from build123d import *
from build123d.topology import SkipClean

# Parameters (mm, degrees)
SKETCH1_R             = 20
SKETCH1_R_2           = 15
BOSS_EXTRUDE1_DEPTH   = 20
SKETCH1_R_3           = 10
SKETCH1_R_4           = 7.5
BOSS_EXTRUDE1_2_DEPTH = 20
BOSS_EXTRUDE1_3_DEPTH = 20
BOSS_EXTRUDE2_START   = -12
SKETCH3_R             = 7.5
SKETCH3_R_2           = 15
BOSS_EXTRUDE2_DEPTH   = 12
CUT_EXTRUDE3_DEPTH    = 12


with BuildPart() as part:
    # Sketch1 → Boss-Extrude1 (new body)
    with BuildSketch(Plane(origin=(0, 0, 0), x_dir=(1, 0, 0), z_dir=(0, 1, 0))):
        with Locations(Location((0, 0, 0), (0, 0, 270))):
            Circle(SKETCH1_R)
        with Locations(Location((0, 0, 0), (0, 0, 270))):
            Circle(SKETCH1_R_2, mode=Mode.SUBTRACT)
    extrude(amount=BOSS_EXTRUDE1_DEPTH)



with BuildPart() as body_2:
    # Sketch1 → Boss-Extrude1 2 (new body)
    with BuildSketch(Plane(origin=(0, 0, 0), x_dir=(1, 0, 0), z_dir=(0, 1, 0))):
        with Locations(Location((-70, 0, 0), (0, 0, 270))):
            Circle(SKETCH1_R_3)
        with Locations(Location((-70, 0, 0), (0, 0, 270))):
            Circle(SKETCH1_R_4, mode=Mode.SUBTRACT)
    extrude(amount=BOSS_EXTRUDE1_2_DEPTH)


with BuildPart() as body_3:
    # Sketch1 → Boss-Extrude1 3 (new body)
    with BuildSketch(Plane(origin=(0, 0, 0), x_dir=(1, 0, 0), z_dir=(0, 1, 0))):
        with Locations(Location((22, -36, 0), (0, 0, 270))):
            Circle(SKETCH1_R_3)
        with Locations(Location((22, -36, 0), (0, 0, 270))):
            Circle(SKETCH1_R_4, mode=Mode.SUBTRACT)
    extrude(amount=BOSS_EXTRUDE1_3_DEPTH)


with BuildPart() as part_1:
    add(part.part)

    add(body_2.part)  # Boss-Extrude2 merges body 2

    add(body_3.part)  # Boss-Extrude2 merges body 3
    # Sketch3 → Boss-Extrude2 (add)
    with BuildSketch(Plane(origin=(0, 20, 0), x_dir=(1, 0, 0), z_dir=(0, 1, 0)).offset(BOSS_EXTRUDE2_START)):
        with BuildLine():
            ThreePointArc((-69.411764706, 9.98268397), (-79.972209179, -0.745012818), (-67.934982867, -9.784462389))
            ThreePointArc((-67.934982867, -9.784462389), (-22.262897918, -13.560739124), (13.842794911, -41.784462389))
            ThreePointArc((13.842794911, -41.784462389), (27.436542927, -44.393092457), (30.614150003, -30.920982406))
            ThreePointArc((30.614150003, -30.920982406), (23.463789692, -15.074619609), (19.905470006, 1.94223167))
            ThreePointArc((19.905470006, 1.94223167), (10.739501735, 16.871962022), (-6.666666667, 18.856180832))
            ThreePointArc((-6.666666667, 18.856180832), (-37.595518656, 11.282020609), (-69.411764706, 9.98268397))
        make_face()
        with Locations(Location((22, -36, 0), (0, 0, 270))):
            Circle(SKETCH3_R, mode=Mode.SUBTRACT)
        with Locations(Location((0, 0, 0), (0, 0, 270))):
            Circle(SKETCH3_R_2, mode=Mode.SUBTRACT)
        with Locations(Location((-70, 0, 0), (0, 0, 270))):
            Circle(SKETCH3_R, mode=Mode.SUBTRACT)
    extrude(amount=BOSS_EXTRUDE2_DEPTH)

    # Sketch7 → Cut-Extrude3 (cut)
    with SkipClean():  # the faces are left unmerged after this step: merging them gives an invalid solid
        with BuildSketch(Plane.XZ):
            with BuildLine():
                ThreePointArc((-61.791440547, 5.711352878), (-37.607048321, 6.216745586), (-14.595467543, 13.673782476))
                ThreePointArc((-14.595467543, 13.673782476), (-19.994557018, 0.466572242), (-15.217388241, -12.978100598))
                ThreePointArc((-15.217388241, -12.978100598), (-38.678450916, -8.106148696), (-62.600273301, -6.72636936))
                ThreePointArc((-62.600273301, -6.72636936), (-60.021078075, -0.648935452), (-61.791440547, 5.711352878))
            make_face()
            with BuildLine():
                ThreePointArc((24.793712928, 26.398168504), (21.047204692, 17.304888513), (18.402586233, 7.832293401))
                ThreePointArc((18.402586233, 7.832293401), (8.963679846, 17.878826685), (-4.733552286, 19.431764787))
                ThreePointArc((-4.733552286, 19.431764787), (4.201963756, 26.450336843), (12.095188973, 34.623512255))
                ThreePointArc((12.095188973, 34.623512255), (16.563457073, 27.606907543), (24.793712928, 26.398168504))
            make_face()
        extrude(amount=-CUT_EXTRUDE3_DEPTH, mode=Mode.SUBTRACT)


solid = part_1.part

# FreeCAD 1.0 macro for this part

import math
import FreeCAD as App
import Part
import Sketcher

doc = App.newDocument("Part")
params = doc.addObject("Spreadsheet::Sheet", "Params")
for row, (alias, value) in enumerate([
    ("sketch1_diameter", "40 mm"),
    ("sketch1_diameter2", "30 mm"),
    ("pad1_length", "20 mm"),
    ("sketch2_diameter", "20 mm"),
    ("sketch2_diameter2", "15 mm"),
    ("pad2_length", "20 mm"),
    ("sketch3_diameter", "20 mm"),
    ("sketch3_diameter2", "15 mm"),
    ("pad3_length", "20 mm"),
    ("sketch4_diameter", "15 mm"),
    ("sketch4_diameter2", "30 mm"),
    ("sketch4_radius", "10 mm"),
    ("sketch4_radius2", "80 mm"),
    ("sketch4_radius3", "20 mm"),
    ("pad4_length", "12 mm"),
    ("sketch5_radius", "83 mm"),
    ("sketch5_radius2", "10 mm"),
    ("sketch5_radius3", "163 mm"),
    ("sketch5_radius4", "20 mm"),
    ("pocket1_length", "12 mm"),
], start=1):
    params.set(f"A{row}", alias)
    params.set(f"B{row}", "=" + value)
    params.setAlias(f"B{row}", alias)

body = doc.addObject("PartDesign::Body", "Body")

# Sketch on XZ plane
sketch1 = doc.addObject("Sketcher::SketchObject", "Sketch")
body.addObject(sketch1)
sketch1.AttachmentSupport = (doc.XZ_Plane, [""])
sketch1.MapMode = "FlatFace"
sketch1.addGeometry([
    Part.Circle(App.Vector(0, 0, 0), App.Vector(0, 0, 1), 20),
    Part.Circle(App.Vector(0, 0, 0), App.Vector(0, 0, 1), 15),
], False)
sketch1.addConstraint([
    Sketcher.Constraint("Coincident", 0, 3, -1, 1),
    Sketcher.Constraint("Coincident", 1, 3, -1, 1),
    Sketcher.Constraint("Diameter", 0, 40.0),
    Sketcher.Constraint("Diameter", 1, 30.0),
])
sketch1.setExpression("Constraints[2]", "Params.sketch1_diameter")
sketch1.setExpression("Constraints[3]", "Params.sketch1_diameter2")
pad1 = doc.addObject("PartDesign::Pad", "Pad")
body.addObject(pad1)
pad1.Profile = sketch1
pad1.setExpression("Length", "Params.pad1_length")
pad1.Reversed = True
body2 = doc.addObject("PartDesign::Body", "Body001")

# Sketch on XZ plane
sketch2 = doc.addObject("Sketcher::SketchObject", "Sketch001")
body2.addObject(sketch2)
sketch2.AttachmentSupport = (doc.getObject("XZ_Plane001"), [""])
sketch2.MapMode = "FlatFace"
sketch2.addGeometry([
    Part.Circle(App.Vector(-70, 0, 0), App.Vector(0, 0, 1), 10),
    Part.Circle(App.Vector(-70, 0, 0), App.Vector(0, 0, 1), 8),
], False)
sketch2.addConstraint([
    Sketcher.Constraint("Coincident", 1, 3, 0, 3),
    Sketcher.Constraint("PointOnObject", 0, 3, -1),
    Sketcher.Constraint("Diameter", 0, 20.0),
    Sketcher.Constraint("Diameter", 1, 15.0),
    Sketcher.Constraint("DistanceX", 0, 3, -1, 1, 70.0),
])
sketch2.setExpression("Constraints[2]", "Params.sketch2_diameter")
sketch2.setExpression("Constraints[3]", "Params.sketch2_diameter2")
pad2 = doc.addObject("PartDesign::Pad", "Pad001")
body2.addObject(pad2)
pad2.Profile = sketch2
pad2.setExpression("Length", "Params.pad2_length")
pad2.Reversed = True
body3 = doc.addObject("PartDesign::Body", "Body002")

# Sketch on XZ plane
sketch3 = doc.addObject("Sketcher::SketchObject", "Sketch002")
body3.addObject(sketch3)
sketch3.AttachmentSupport = (doc.getObject("XZ_Plane002"), [""])
sketch3.MapMode = "FlatFace"
sketch3.addGeometry([
    Part.Circle(App.Vector(22, 36, 0), App.Vector(0, 0, 1), 10),
    Part.Circle(App.Vector(22, 36, 0), App.Vector(0, 0, 1), 8),
], False)
sketch3.addConstraint([
    Sketcher.Constraint("Coincident", 1, 3, 0, 3),
    Sketcher.Constraint("Diameter", 0, 20.0),
    Sketcher.Constraint("Diameter", 1, 15.0),
    Sketcher.Constraint("DistanceX", -1, 1, 0, 3, 22.0),
    Sketcher.Constraint("DistanceY", -1, 1, 0, 3, 36.0),
])
sketch3.setExpression("Constraints[1]", "Params.sketch3_diameter")
sketch3.setExpression("Constraints[2]", "Params.sketch3_diameter2")
pad3 = doc.addObject("PartDesign::Pad", "Pad002")
body3.addObject(pad3)
pad3.Profile = sketch3
pad3.setExpression("Length", "Params.pad3_length")
pad3.Reversed = True
body.AllowCompound = True
doc.recompute()

boolean = doc.addObject("PartDesign::Boolean", "Boolean")
body.addObject(boolean)
boolean.Type = "Fuse"
boolean.addObjects([body2])
doc.recompute()

boolean2 = doc.addObject("PartDesign::Boolean", "Boolean001")
body.addObject(boolean2)
boolean2.Type = "Fuse"
boolean2.addObjects([body3])

# Sketch on XZ plane
sketch4 = doc.addObject("Sketcher::SketchObject", "Sketch003")
body.addObject(sketch4)
sketch4.AttachmentSupport = (doc.XZ_Plane, [""])
sketch4.MapMode = "FlatFace"
sketch4.AttachmentOffset = App.Placement(App.Vector(0, 0, -8), App.Rotation())
sketch4.addGeometry([
    Part.ArcOfCircle(Part.Circle(App.Vector(-70, 0, 0), App.Vector(0, 0, 1), 10), math.radians(78), math.radians(273)),  # 0
    Part.ArcOfCircle(Part.Circle(App.Vector(-51, 88, 0), App.Vector(0, 0, 1), 80), math.radians(-102), math.radians(-35)),  # 1
    Part.ArcOfCircle(Part.Circle(App.Vector(22, 36, 0), App.Vector(0, 0, 1), 10), math.radians(-31), math.radians(145)),  # 2
    Part.ArcOfCircle(Part.Circle(App.Vector(100, -10, 0), App.Vector(0, 0, 1), 80), math.radians(149), math.radians(174)),  # 3
    Part.ArcOfCircle(Part.Circle(App.Vector(0, 0, 0), App.Vector(0, 0, 1), 20), math.radians(-109), math.radians(-6)),  # 4
    Part.ArcOfCircle(Part.Circle(App.Vector(-60, -170, 0), App.Vector(0, 0, 1), 160), math.radians(71), math.radians(93)),  # 5
    Part.Circle(App.Vector(22, 36, 0), App.Vector(0, 0, 1), 8),  # 6
    Part.Circle(App.Vector(-70, 0, 0), App.Vector(0, 0, 1), 8),  # 7
    Part.Circle(App.Vector(0, 0, 0), App.Vector(0, 0, 1), 15),  # 8
], False)
sketch4.addConstraint([
    Sketcher.Constraint("Tangent", 0, 1, 1, 1),
    Sketcher.Constraint("Tangent", 1, 2, 2, 2),
    Sketcher.Constraint("Tangent", 2, 1, 3, 1),
    Sketcher.Constraint("Tangent", 3, 2, 4, 2),
    Sketcher.Constraint("Tangent", 4, 1, 5, 1),
    Sketcher.Constraint("Tangent", 5, 2, 0, 2),
    Sketcher.Constraint("Coincident", 4, 3, -1, 1),
    Sketcher.Constraint("Coincident", 8, 3, -1, 1),
    Sketcher.Constraint("Coincident", 6, 3, 2, 3),
    Sketcher.Constraint("Coincident", 7, 3, 0, 3),
    Sketcher.Constraint("Equal", 0, 2),
    Sketcher.Constraint("Equal", 1, 3),
    Sketcher.Constraint("Equal", 6, 7),
    Sketcher.Constraint("PointOnObject", 0, 3, -1),
    Sketcher.Constraint("Diameter", 6, 15.0),
    Sketcher.Constraint("Diameter", 8, 30.0),
    Sketcher.Constraint("Radius", 0, 10.0),
    Sketcher.Constraint("Radius", 1, 80.0),
    Sketcher.Constraint("Radius", 4, 20.0),
    Sketcher.Constraint("Radius", 5, 160.0),
    Sketcher.Constraint("DistanceX", 0, 3, -1, 1, 70.0),
    Sketcher.Constraint("DistanceX", -1, 1, 2, 3, 22.0),
    Sketcher.Constraint("DistanceY", -1, 1, 2, 3, 36.0),
])
sketch4.setExpression("Constraints[14]", "Params.sketch4_diameter")
sketch4.setExpression("Constraints[15]", "Params.sketch4_diameter2")
sketch4.setExpression("Constraints[16]", "Params.sketch4_radius")
sketch4.setExpression("Constraints[17]", "Params.sketch4_radius2")
sketch4.setExpression("Constraints[18]", "Params.sketch4_radius3")
pad4 = doc.addObject("PartDesign::Pad", "Pad003")
body.addObject(pad4)
pad4.Profile = sketch4
pad4.setExpression("Length", "Params.pad4_length")
pad4.Reversed = True

# Sketch on XZ plane
sketch5 = doc.addObject("Sketcher::SketchObject", "Sketch004")
body.addObject(sketch5)
sketch5.AttachmentSupport = (doc.XZ_Plane, [""])
sketch5.MapMode = "FlatFace"
sketch5.addGeometry([
    Part.ArcOfCircle(Part.Circle(App.Vector(-51, 88, 0), App.Vector(0, 0, 1), 83), math.radians(-97), math.radians(-64)),  # 0
    Part.ArcOfCircle(Part.Circle(App.Vector(-70, 0, 0), App.Vector(0, 0, 1), 10), math.radians(-42), math.radians(35)),  # 1
    Part.ArcOfCircle(Part.Circle(App.Vector(-60, -170, 0), App.Vector(0, 0, 1), 163), math.radians(74.05), math.radians(90.91)),  # 2
    Part.ArcOfCircle(Part.Circle(App.Vector(0, 0, 0), App.Vector(0, 0, 1), 20), math.radians(137), math.radians(220)),  # 3
    Part.ArcOfCircle(Part.Circle(App.Vector(100, -10, 0), App.Vector(0, 0, 1), 83), math.radians(154.21), math.radians(167.8)),  # 4
    Part.ArcOfCircle(Part.Circle(App.Vector(22, 36, 0), App.Vector(0, 0, 1), 10), math.radians(-172), math.radians(-74)),  # 5
    Part.ArcOfCircle(Part.Circle(App.Vector(-51, 88, 0), App.Vector(0, 0, 1), 83), math.radians(-55.78), math.radians(-40.08)),  # 6
    Part.ArcOfCircle(Part.Circle(App.Vector(0, 0, 0), App.Vector(0, 0, 1), 20), math.radians(23), math.radians(104)),  # 7
], False)
sketch5.addConstraint([
    Sketcher.Constraint("Coincident", 0, 1, 1, 2),
    Sketcher.Constraint("Coincident", 1, 1, 2, 2),
    Sketcher.Constraint("Coincident", 2, 1, 3, 2),
    Sketcher.Constraint("Coincident", 3, 1, 0, 2),
    Sketcher.Constraint("Coincident", 4, 1, 5, 2),
    Sketcher.Constraint("Coincident", 5, 1, 6, 2),
    Sketcher.Constraint("Coincident", 6, 1, 7, 2),
    Sketcher.Constraint("Coincident", 7, 1, 4, 2),
    Sketcher.Constraint("Coincident", 3, 3, -1, 1),
    Sketcher.Constraint("Coincident", 7, 3, -1, 1),
    Sketcher.Constraint("Coincident", 6, 3, 0, 3),
    Sketcher.Constraint("Equal", 0, 4),
    Sketcher.Constraint("Equal", 1, 5),
    Sketcher.Constraint("Equal", 4, 6),
    Sketcher.Constraint("Equal", 3, 7),
    Sketcher.Constraint("PointOnObject", 1, 3, -1),
    Sketcher.Constraint("Radius", 0, 83.0),
    Sketcher.Constraint("Radius", 1, 10.0),
    Sketcher.Constraint("Radius", 2, 163.0),
    Sketcher.Constraint("Radius", 3, 20.0),
    Sketcher.Constraint("DistanceX", 1, 3, -1, 1, 70.0),
    Sketcher.Constraint("DistanceX", 2, 3, -1, 1, 60.0),
    Sketcher.Constraint("DistanceX", -1, 1, 5, 3, 22.0),
    Sketcher.Constraint("DistanceY", -1, 1, 5, 3, 36.0),
    Sketcher.Constraint("DistanceY", 2, 1, -1, 1, 12.978101),
    Sketcher.Constraint("DistanceX", 2, 1, 4, 1, 40.011101),
    Sketcher.Constraint("DistanceY", -1, 1, 0, 3, 88.060162),
    Sketcher.Constraint("DistanceX", -1, 1, 4, 3, 99.52735),
    Sketcher.Constraint("DistanceX", -1, 1, 5, 1, 12.095189),
])
sketch5.setExpression("Constraints[16]", "Params.sketch5_radius")
sketch5.setExpression("Constraints[17]", "Params.sketch5_radius2")
sketch5.setExpression("Constraints[18]", "Params.sketch5_radius3")
sketch5.setExpression("Constraints[19]", "Params.sketch5_radius4")
pocket1 = doc.addObject("PartDesign::Pocket", "Pocket")
body.addObject(pocket1)
pocket1.Profile = sketch5
pocket1.setExpression("Length", "Params.pocket1_length")

doc.recompute()
